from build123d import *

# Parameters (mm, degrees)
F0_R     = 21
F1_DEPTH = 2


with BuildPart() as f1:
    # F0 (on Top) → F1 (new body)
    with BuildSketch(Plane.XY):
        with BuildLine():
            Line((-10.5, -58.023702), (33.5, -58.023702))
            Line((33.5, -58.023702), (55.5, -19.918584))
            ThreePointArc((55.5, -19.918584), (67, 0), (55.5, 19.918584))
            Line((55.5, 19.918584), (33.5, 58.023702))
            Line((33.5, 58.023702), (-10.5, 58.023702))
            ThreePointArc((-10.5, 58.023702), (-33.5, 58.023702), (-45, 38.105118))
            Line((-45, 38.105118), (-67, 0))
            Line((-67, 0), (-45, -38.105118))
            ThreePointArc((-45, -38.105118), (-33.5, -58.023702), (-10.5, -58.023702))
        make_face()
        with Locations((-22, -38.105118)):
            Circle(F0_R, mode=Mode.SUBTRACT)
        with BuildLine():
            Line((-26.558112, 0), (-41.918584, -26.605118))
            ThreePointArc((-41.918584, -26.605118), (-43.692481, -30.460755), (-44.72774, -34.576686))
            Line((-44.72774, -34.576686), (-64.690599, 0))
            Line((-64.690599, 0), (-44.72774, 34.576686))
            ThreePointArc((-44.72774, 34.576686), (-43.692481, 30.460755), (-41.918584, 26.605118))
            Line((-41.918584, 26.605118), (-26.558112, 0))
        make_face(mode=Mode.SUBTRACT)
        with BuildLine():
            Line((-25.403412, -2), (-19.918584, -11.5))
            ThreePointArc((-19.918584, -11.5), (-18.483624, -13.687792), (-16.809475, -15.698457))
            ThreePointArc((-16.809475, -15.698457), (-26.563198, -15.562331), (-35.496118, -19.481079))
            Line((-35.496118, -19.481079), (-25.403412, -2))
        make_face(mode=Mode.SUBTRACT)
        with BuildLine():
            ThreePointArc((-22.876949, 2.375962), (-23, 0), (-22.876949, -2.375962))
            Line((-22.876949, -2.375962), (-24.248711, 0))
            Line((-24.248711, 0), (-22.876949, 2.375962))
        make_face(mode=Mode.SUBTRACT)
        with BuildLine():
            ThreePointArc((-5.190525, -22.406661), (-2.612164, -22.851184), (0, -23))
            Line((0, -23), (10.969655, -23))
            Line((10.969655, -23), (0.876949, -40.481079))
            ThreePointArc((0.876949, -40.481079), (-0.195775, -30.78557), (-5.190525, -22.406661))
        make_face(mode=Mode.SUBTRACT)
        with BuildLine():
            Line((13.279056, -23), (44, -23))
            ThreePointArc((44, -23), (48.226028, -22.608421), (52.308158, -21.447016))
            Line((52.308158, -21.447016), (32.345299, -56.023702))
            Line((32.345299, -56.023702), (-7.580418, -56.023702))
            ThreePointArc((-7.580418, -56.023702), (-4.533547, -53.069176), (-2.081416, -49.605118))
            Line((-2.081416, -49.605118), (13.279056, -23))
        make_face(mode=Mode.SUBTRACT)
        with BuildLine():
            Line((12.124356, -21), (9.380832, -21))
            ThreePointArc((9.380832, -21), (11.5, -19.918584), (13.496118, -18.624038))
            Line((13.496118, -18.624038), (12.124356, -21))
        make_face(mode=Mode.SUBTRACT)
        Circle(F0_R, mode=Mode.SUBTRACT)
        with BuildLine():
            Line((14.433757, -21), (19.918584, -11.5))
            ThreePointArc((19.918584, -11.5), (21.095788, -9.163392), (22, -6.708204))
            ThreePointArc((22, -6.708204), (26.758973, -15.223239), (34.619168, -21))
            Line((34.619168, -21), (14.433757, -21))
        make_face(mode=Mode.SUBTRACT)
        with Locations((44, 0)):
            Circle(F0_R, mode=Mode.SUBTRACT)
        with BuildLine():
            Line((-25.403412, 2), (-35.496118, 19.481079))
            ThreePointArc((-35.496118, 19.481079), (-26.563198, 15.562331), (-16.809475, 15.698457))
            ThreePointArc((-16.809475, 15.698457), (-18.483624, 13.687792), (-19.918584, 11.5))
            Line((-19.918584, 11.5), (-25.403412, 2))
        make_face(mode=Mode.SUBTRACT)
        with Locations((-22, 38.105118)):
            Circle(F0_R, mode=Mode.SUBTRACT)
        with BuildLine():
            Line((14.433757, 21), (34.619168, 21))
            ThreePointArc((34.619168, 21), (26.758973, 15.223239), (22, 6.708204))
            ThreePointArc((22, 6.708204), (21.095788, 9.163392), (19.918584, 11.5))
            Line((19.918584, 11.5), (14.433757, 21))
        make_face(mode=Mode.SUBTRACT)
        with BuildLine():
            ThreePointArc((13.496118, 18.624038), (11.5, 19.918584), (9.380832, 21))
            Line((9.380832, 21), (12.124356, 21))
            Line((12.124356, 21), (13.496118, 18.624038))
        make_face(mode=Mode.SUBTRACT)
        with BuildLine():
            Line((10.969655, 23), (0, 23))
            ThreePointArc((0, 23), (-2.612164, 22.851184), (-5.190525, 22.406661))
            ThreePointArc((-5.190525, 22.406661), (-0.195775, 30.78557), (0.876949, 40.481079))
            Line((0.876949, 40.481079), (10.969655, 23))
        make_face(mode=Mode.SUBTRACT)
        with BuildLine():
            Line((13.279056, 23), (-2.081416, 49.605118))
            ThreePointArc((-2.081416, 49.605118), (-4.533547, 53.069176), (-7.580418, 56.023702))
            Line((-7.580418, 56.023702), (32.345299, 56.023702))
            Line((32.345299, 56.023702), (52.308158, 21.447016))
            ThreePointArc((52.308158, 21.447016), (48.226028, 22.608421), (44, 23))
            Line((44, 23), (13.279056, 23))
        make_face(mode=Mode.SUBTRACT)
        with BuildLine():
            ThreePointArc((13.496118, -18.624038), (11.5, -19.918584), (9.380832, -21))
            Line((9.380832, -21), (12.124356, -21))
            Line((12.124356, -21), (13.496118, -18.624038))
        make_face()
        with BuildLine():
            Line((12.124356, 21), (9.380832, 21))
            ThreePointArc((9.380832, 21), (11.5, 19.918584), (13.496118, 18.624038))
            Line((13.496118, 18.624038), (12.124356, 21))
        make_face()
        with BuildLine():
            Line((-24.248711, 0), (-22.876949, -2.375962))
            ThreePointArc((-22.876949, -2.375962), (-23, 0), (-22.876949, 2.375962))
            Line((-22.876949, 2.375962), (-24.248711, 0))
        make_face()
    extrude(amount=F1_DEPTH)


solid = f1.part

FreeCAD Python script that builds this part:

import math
import FreeCAD as App
import Part
import Sketcher
from FreeCAD import Vector
Q = App.Units.Quantity

doc = App.newDocument("Part")
body = doc.addObject("PartDesign::Body", "Body")

# Sketch on XY plane
sketch1 = body.newObject("Sketcher::SketchObject", "Sketch")
sketch1.AttachmentSupport = (doc.getObject("XY_Plane"), [""])
sketch1.MapMode = "FlatFace"
sketch1.addGeometry([
    Part.LineSegment(Vector(-10.5, -58.023702, 0), Vector(33.5, -58.023702, 0)),  # 0
    Part.LineSegment(Vector(33.5, -58.023702, 0), Vector(55.5, -19.918584, 0)),  # 1
    Part.ArcOfCircle(Part.Circle(Vector(44, 0, 0), Vector(0, 0, 1), 23), math.radians(-60.000001), math.radians(60.000001)),  # 2
    Part.LineSegment(Vector(55.5, 19.918584, 0), Vector(33.5, 58.023702, 0)),  # 3
    Part.LineSegment(Vector(33.5, 58.023702, 0), Vector(-10.5, 58.023702, 0)),  # 4
    Part.ArcOfCircle(Part.Circle(Vector(-22, 38.105118, 0), Vector(0, 0, 1), 23), math.radians(60), math.radians(179.999999)),  # 5
    Part.LineSegment(Vector(-45, 38.105118, 0), Vector(-67, 0, 0)),  # 6
    Part.LineSegment(Vector(-67, 0, 0), Vector(-45, -38.105118, 0)),  # 7
    Part.ArcOfCircle(Part.Circle(Vector(-22, -38.105118, 0), Vector(0, 0, 1), 23), math.radians(-179.999999), math.radians(-60)),  # 8
    Part.Circle(Vector(-22, -38.105118, 0), Vector(0, 0, 1), 21),  # 9
    Part.LineSegment(Vector(-35.496118, -19.481079, 0), Vector(-25.403412, -2, 0)),  # 10
    Part.LineSegment(Vector(-25.403412, -2, 0), Vector(-19.918584, -11.5, 0)),  # 11
    Part.ArcOfCircle(Part.Circle(Vector(-0.000028, -0.000023, 0), Vector(0, 0, 1), 22.999964), math.radians(-150.000013), math.radians(-136.957419)),  # 12
    Part.ArcOfCircle(Part.Circle(Vector(-22.000001, -38.105117, 0), Vector(0, 0, 1), 23), math.radians(76.957424), math.radians(125.929385)),  # 13
    Part.Circle(Vector(0, 0, 0), Vector(0, 0, 1), 21),  # 14
    Part.ArcOfCircle(Part.Circle(Vector(-21.999996, -38.105116, 0), Vector(0, 0, 1), 22.999996), math.radians(-5.929389), math.radians(43.042577)),  # 15
    Part.ArcOfCircle(Part.Circle(Vector(-0.000004, -0.000025, 0), Vector(0, 0, 1), 22.999975), math.radians(-103.042579), math.radians(-89.999991)),  # 16
    Part.LineSegment(Vector(0, -23, 0), Vector(10.969655, -23, 0)),  # 17
    Part.LineSegment(Vector(10.969655, -23, 0), Vector(0.876949, -40.481079, 0)),  # 18
    Part.LineSegment(Vector(-2.081416, -49.605118, 0), Vector(13.279056, -23, 0)),  # 19
    Part.LineSegment(Vector(13.279056, -23, 0), Vector(44, -23, 0)),  # 20
    Part.ArcOfCircle(Part.Circle(Vector(44.000004, -0.000026, 0), Vector(0, 0, 1), 22.999974), math.radians(-90.00001), math.radians(-68.824584)),  # 21
    Part.LineSegment(Vector(52.308158, -21.447016, 0), Vector(32.345299, -56.023702, 0)),  # 22
    Part.LineSegment(Vector(32.345299, -56.023702, 0), Vector(-7.580418, -56.023702, 0)),  # 23
    Part.ArcOfCircle(Part.Circle(Vector(-21.999982, -38.105134, 0), Vector(0, 0, 1), 22.999976), math.radians(-51.175411), math.radians(-29.999988)),  # 24
    Part.LineSegment(Vector(34.619168, -21, 0), Vector(14.433757, -21, 0)),  # 25
    Part.LineSegment(Vector(14.433757, -21, 0), Vector(19.918584, -11.5, 0)),  # 26
    Part.ArcOfCircle(Part.Circle(Vector(0.000092, -0.000038, 0), Vector(0, 0, 1), 22.999901), math.radians(-30.000031), math.radians(-16.957401)),  # 27
    Part.ArcOfCircle(Part.Circle(Vector(43.999998, -0.000002, 0), Vector(0, 0, 1), 22.999997), math.radians(-163.042577), math.radians(-114.070613)),  # 28
    Part.Circle(Vector(44, 0, 0), Vector(0, 0, 1), 21),  # 29
    Part.LineSegment(Vector(-41.918584, 26.605118, 0), Vector(-26.558112, 0, 0)),  # 30
    Part.LineSegment(Vector(-26.558112, 0, 0), Vector(-41.918584, -26.605118, 0)),  # 31
    Part.ArcOfCircle(Part.Circle(Vector(-22.00003, -38.105108, 0), Vector(0, 0, 1), 22.999969), math.radians(149.999984), math.radians(171.175415)),  # 32
    Part.LineSegment(Vector(-44.72774, -34.576686, 0), Vector(-64.690599, 0, 0)),  # 33
    Part.LineSegment(Vector(-64.690599, 0, 0), Vector(-44.72774, 34.576686, 0)),  # 34
    Part.ArcOfCircle(Part.Circle(Vector(-22.00003, 38.105108, 0), Vector(0, 0, 1), 22.999969), math.radians(-171.175415), math.radians(-149.999984)),  # 35
    Part.LineSegment(Vector(-19.918584, 11.5, 0), Vector(-25.403412, 2, 0)),  # 36
    Part.LineSegment(Vector(-25.403412, 2, 0), Vector(-35.496118, 19.481079, 0)),  # 37
    Part.ArcOfCircle(Part.Circle(Vector(-22.000001, 38.105117, 0), Vector(0, 0, 1), 23), math.radians(-125.929385), math.radians(-76.957424)),  # 38
    Part.ArcOfCircle(Part.Circle(Vector(-0.000028, 0.000023, 0), Vector(0, 0, 1), 22.999964), math.radians(136.957419), math.radians(150.000013)),  # 39
    Part.Circle(Vector(-22, 38.105118, 0), Vector(0, 0, 1), 21),  # 40
    Part.LineSegment(Vector(19.918584, 11.5, 0), Vector(14.433757, 21, 0)),  # 41
    Part.LineSegment(Vector(14.433757, 21, 0), Vector(34.619168, 21, 0)),  # 42
    Part.ArcOfCircle(Part.Circle(Vector(43.999998, 0.000002, 0), Vector(0, 0, 1), 22.999997), math.radians(114.070613), math.radians(163.042577)),  # 43
    Part.ArcOfCircle(Part.Circle(Vector(0.000092, 0.000038, 0), Vector(0, 0, 1), 22.999901), math.radians(16.957401), math.radians(30.000031)),  # 44
    Part.LineSegment(Vector(0.876949, 40.481079, 0), Vector(10.969655, 23, 0)),  # 45
    Part.LineSegment(Vector(10.969655, 23, 0), Vector(0, 23, 0)),  # 46
    Part.ArcOfCircle(Part.Circle(Vector(-0.000004, 0.000025, 0), Vector(0, 0, 1), 22.999975), math.radians(89.999991), math.radians(103.042579)),  # 47
    Part.ArcOfCircle(Part.Circle(Vector(-21.999996, 38.105116, 0), Vector(0, 0, 1), 22.999996), math.radians(-43.042577), math.radians(5.929389)),  # 48
    Part.LineSegment(Vector(44, 23, 0), Vector(13.279056, 23, 0)),  # 49
    Part.LineSegment(Vector(13.279056, 23, 0), Vector(-2.081416, 49.605118, 0)),  # 50
    Part.ArcOfCircle(Part.Circle(Vector(-21.999982, 38.105134, 0), Vector(0, 0, 1), 22.999976), math.radians(29.999988), math.radians(51.175411)),  # 51
    Part.LineSegment(Vector(-7.580418, 56.023702, 0), Vector(32.345299, 56.023702, 0)),  # 52
    Part.LineSegment(Vector(32.345299, 56.023702, 0), Vector(52.308158, 21.447016, 0)),  # 53
    Part.ArcOfCircle(Part.Circle(Vector(44.000004, 0.000026, 0), Vector(0, 0, 1), 22.999974), math.radians(68.824584), math.radians(90.00001)),  # 54
], False)
sketch1.addConstraint([
    Sketcher.Constraint("Coincident", 0, 2, 1, 1),
    Sketcher.Constraint("Coincident", 1, 2, 2, 1),
    Sketcher.Constraint("Coincident", 2, 2, 3, 1),
    Sketcher.Constraint("Coincident", 3, 2, 4, 1),
    Sketcher.Constraint("Coincident", 4, 2, 5, 1),
    Sketcher.Constraint("Coincident", 5, 2, 6, 1),
    Sketcher.Constraint("Coincident", 6, 2, 7, 1),
    Sketcher.Constraint("Coincident", 7, 2, 8, 1),
    Sketcher.Constraint("Coincident", 8, 2, 0, 1),
    Sketcher.Constraint("Coincident", 10, 2, 11, 1),
    Sketcher.Constraint("Tangent", 11, 2, 12, 1),
    Sketcher.Constraint("Coincident", 12, 2, 13, 1),
    Sketcher.Constraint("Coincident", 13, 2, 10, 1),
    Sketcher.Constraint("Coincident", 15, 2, 16, 1),
    Sketcher.Constraint("Tangent", 16, 2, 17, 1),
    Sketcher.Constraint("Coincident", 17, 2, 18, 1),
    Sketcher.Constraint("Coincident", 18, 2, 15, 1),
    Sketcher.Constraint("Coincident", 19, 2, 20, 1),
    Sketcher.Constraint("Tangent", 20, 2, 21, 1),
    Sketcher.Constraint("Coincident", 21, 2, 22, 1),
    Sketcher.Constraint("Coincident", 22, 2, 23, 1),
    Sketcher.Constraint("Coincident", 23, 2, 24, 1),
    Sketcher.Constraint("Tangent", 24, 2, 19, 1),
    Sketcher.Constraint("Coincident", 25, 2, 26, 1),
    Sketcher.Constraint("Tangent", 26, 2, 27, 1),
    Sketcher.Constraint("Coincident", 27, 2, 28, 1),
    Sketcher.Constraint("Coincident", 28, 2, 25, 1),
    Sketcher.Constraint("Coincident", 30, 2, 31, 1),
    Sketcher.Constraint("Tangent", 31, 2, 32, 1),
    Sketcher.Constraint("Coincident", 32, 2, 33, 1),
    Sketcher.Constraint("Coincident", 33, 2, 34, 1),
    Sketcher.Constraint("Coincident", 34, 2, 35, 1),
    Sketcher.Constraint("Tangent", 35, 2, 30, 1),
    Sketcher.Constraint("Coincident", 36, 2, 37, 1),
    Sketcher.Constraint("Coincident", 37, 2, 38, 1),
    Sketcher.Constraint("Coincident", 38, 2, 39, 1),
    Sketcher.Constraint("Tangent", 39, 2, 36, 1),
    Sketcher.Constraint("Coincident", 41, 2, 42, 1),
    Sketcher.Constraint("Coincident", 42, 2, 43, 1),
    Sketcher.Constraint("Coincident", 43, 2, 44, 1),
    Sketcher.Constraint("Tangent", 44, 2, 41, 1),
    Sketcher.Constraint("Coincident", 45, 2, 46, 1),
    Sketcher.Constraint("Tangent", 46, 2, 47, 1),
    Sketcher.Constraint("Coincident", 47, 2, 48, 1),
    Sketcher.Constraint("Coincident", 48, 2, 45, 1),
    Sketcher.Constraint("Coincident", 49, 2, 50, 1),
    Sketcher.Constraint("Tangent", 50, 2, 51, 1),
    Sketcher.Constraint("Coincident", 51, 2, 52, 1),
    Sketcher.Constraint("Coincident", 52, 2, 53, 1),
    Sketcher.Constraint("Coincident", 53, 2, 54, 1),
    Sketcher.Constraint("Tangent", 54, 2, 49, 1),
    Sketcher.Constraint("Horizontal", 0),
    Sketcher.Constraint("Horizontal", 4),
    Sketcher.Constraint("Horizontal", 17),
    Sketcher.Constraint("Horizontal", 20),
    Sketcher.Constraint("Horizontal", 23),
    Sketcher.Constraint("Horizontal", 25),
    Sketcher.Constraint("Horizontal", 42),
    Sketcher.Constraint("Horizontal", 46),
    Sketcher.Constraint("Horizontal", 49),
    Sketcher.Constraint("Horizontal", 52),
    Sketcher.Constraint("Coincident", 14, 3, -1, 1),
    Sketcher.Constraint("Coincident", 9, 3, 8, 3),
    Sketcher.Constraint("Coincident", 13, 3, 8, 3),
    Sketcher.Constraint("Coincident", 15, 3, 8, 3),
    Sketcher.Constraint("Coincident", 28, 3, 2, 3),
    Sketcher.Constraint("Coincident", 29, 3, 2, 3),
    Sketcher.Constraint("Coincident", 38, 3, 5, 3),
    Sketcher.Constraint("Coincident", 40, 3, 5, 3),
    Sketcher.Constraint("Coincident", 43, 3, 2, 3),
    Sketcher.Constraint("Coincident", 48, 3, 5, 3),
    Sketcher.Constraint("Equal", 2, 5),
    Sketcher.Constraint("Equal", 5, 8),
    Sketcher.Constraint("Equal", 8, 13),
    Sketcher.Constraint("Equal", 9, 14),
    Sketcher.Constraint("Equal", 16, 21),
    Sketcher.Constraint("Equal", 21, 24),
    Sketcher.Constraint("Equal", 15, 28),
    Sketcher.Constraint("Equal", 14, 29),
    Sketcher.Constraint("Equal", 32, 35),
    Sketcher.Constraint("Equal", 13, 38),
    Sketcher.Constraint("Equal", 12, 39),
    Sketcher.Constraint("Equal", 29, 40),
    Sketcher.Constraint("Equal", 28, 43),
    Sketcher.Constraint("Equal", 27, 44),
    Sketcher.Constraint("Equal", 24, 47),
    Sketcher.Constraint("Equal", 43, 48),
    Sketcher.Constraint("Equal", 47, 51),
    Sketcher.Constraint("Equal", 51, 54),
    Sketcher.Constraint("Symmetric", 16, 3, 47, 3, -1, 1),
    Sketcher.Constraint("Symmetric", 26, 2, 39, 2, -1, 1),
    Sketcher.Constraint("Symmetric", 11, 2, 44, 2, -1, 1),
    Sketcher.Constraint("Symmetric", 11, 2, 26, 2, -2),
    Sketcher.Constraint("Symmetric", 5, 3, 8, 3, -1),
    Sketcher.Constraint("Symmetric", 32, 3, 35, 3, -1),
    Sketcher.Constraint("Symmetric", 24, 3, 51, 3, -1),
    Sketcher.Constraint("Symmetric", 21, 3, 54, 3, -1),
    Sketcher.Constraint("Symmetric", 1, 2, 2, 2, -1),
    Sketcher.Constraint("Symmetric", 0, 2, 3, 2, -1),
    Sketcher.Constraint("Symmetric", 10, 2, 36, 2, -1),
    Sketcher.Constraint("Symmetric", 25, 2, 41, 2, -1),
    Sketcher.Constraint("Symmetric", 22, 2, 52, 2, -1),
    Sketcher.Constraint("PointOnObject", 6, 2, -1),
    Sketcher.Constraint("PointOnObject", 16, 2, -2),
    Sketcher.Constraint("PointOnObject", 30, 2, -1),
    Sketcher.Constraint("PointOnObject", 33, 2, -1),
    Sketcher.Constraint("Parallel", 1, 6),
    Sketcher.Constraint("Parallel", 3, 7),
    Sketcher.Constraint("Parallel", 6, 10),
    Sketcher.Constraint("Parallel", 7, 11),
    Sketcher.Constraint("Parallel", 10, 18),
    Sketcher.Constraint("Parallel", 18, 19),
    Sketcher.Constraint("Parallel", 19, 22),
    Sketcher.Constraint("Parallel", 22, 26),
    Sketcher.Constraint("Parallel", 11, 30),
    Sketcher.Constraint("Parallel", 30, 33),
    Sketcher.Constraint("Parallel", 31, 34),
    Sketcher.Constraint("Parallel", 33, 37),
    Sketcher.Constraint("Parallel", 41, 45),
    Sketcher.Constraint("Parallel", 45, 50),
    Sketcher.Constraint("Parallel", 50, 53),
    Sketcher.Constraint("Horizontal", 16, 3, 21, 3),
    Sketcher.Constraint("Horizontal", 48, 3, 5, 2),
    Sketcher.Constraint("Vertical", 29, 3, 20, 2),
    Sketcher.Constraint("Vertical", 17, 2, 45, 2),
    Sketcher.Constraint("Equal", 3, 6),
    Sketcher.Constraint("Equal", 10, 18),
    Sketcher.Constraint("Equal", 11, 26),
    Sketcher.Constraint("Equal", 19, 30),
    Sketcher.Constraint("Equal", 22, 33),
    Sketcher.Constraint("Diameter", 9, 42.0),
    Sketcher.Constraint("Radius", 2, 23.0),
    Sketcher.Constraint("DistanceX", 0, 1, 0, 2, 44.0),
    Sketcher.Constraint("Angle", 1, Q("60 deg")),
    Sketcher.Constraint("Distance", 1, 44.0),
    Sketcher.Constraint("DistanceX", -1, 1, 2, 3, 44.0),
    Sketcher.Constraint("DistanceY", 10, 2, -1, 1, 2.0),
    Sketcher.Constraint("DistanceY", 16, 2, -1, 1, 23.0),
    Sketcher.Constraint("DistanceY", 25, 2, -1, 1, 21.0),
    Sketcher.Constraint("DistanceX", -1, 1, 27, 2, 22.0),
    Sketcher.Constraint("DistanceX", -1, 1, 0, 2, 33.5),
    Sketcher.Constraint("Radius", 27, 22.999901),
    Sketcher.Constraint("Radius", 32, 22.999969),
    Sketcher.Constraint("Radius", 12, 22.999964),
    Sketcher.Constraint("Radius", 15, 22.999996),
    Sketcher.Constraint("Radius", 16, 22.999975),
    Sketcher.Constraint("DistanceX", -1, 1, 22, 2, 32.345299),
    Sketcher.Constraint("DistanceX", 33, 2, -1, 1, 64.690599),
    Sketcher.Constraint("DistanceY", -1, 1, 51, 2, 56.023702),
    Sketcher.Constraint("DistanceX", 20, 1, 20, 2, 30.720944),
    Sketcher.Constraint("DistanceX", 23, 2, 23, 1, 39.925717),
])
pad1 = body.newObject("PartDesign::Pad", "Pad")
pad1.Profile = sketch1
pad1.Length = 2

doc.recompute()
